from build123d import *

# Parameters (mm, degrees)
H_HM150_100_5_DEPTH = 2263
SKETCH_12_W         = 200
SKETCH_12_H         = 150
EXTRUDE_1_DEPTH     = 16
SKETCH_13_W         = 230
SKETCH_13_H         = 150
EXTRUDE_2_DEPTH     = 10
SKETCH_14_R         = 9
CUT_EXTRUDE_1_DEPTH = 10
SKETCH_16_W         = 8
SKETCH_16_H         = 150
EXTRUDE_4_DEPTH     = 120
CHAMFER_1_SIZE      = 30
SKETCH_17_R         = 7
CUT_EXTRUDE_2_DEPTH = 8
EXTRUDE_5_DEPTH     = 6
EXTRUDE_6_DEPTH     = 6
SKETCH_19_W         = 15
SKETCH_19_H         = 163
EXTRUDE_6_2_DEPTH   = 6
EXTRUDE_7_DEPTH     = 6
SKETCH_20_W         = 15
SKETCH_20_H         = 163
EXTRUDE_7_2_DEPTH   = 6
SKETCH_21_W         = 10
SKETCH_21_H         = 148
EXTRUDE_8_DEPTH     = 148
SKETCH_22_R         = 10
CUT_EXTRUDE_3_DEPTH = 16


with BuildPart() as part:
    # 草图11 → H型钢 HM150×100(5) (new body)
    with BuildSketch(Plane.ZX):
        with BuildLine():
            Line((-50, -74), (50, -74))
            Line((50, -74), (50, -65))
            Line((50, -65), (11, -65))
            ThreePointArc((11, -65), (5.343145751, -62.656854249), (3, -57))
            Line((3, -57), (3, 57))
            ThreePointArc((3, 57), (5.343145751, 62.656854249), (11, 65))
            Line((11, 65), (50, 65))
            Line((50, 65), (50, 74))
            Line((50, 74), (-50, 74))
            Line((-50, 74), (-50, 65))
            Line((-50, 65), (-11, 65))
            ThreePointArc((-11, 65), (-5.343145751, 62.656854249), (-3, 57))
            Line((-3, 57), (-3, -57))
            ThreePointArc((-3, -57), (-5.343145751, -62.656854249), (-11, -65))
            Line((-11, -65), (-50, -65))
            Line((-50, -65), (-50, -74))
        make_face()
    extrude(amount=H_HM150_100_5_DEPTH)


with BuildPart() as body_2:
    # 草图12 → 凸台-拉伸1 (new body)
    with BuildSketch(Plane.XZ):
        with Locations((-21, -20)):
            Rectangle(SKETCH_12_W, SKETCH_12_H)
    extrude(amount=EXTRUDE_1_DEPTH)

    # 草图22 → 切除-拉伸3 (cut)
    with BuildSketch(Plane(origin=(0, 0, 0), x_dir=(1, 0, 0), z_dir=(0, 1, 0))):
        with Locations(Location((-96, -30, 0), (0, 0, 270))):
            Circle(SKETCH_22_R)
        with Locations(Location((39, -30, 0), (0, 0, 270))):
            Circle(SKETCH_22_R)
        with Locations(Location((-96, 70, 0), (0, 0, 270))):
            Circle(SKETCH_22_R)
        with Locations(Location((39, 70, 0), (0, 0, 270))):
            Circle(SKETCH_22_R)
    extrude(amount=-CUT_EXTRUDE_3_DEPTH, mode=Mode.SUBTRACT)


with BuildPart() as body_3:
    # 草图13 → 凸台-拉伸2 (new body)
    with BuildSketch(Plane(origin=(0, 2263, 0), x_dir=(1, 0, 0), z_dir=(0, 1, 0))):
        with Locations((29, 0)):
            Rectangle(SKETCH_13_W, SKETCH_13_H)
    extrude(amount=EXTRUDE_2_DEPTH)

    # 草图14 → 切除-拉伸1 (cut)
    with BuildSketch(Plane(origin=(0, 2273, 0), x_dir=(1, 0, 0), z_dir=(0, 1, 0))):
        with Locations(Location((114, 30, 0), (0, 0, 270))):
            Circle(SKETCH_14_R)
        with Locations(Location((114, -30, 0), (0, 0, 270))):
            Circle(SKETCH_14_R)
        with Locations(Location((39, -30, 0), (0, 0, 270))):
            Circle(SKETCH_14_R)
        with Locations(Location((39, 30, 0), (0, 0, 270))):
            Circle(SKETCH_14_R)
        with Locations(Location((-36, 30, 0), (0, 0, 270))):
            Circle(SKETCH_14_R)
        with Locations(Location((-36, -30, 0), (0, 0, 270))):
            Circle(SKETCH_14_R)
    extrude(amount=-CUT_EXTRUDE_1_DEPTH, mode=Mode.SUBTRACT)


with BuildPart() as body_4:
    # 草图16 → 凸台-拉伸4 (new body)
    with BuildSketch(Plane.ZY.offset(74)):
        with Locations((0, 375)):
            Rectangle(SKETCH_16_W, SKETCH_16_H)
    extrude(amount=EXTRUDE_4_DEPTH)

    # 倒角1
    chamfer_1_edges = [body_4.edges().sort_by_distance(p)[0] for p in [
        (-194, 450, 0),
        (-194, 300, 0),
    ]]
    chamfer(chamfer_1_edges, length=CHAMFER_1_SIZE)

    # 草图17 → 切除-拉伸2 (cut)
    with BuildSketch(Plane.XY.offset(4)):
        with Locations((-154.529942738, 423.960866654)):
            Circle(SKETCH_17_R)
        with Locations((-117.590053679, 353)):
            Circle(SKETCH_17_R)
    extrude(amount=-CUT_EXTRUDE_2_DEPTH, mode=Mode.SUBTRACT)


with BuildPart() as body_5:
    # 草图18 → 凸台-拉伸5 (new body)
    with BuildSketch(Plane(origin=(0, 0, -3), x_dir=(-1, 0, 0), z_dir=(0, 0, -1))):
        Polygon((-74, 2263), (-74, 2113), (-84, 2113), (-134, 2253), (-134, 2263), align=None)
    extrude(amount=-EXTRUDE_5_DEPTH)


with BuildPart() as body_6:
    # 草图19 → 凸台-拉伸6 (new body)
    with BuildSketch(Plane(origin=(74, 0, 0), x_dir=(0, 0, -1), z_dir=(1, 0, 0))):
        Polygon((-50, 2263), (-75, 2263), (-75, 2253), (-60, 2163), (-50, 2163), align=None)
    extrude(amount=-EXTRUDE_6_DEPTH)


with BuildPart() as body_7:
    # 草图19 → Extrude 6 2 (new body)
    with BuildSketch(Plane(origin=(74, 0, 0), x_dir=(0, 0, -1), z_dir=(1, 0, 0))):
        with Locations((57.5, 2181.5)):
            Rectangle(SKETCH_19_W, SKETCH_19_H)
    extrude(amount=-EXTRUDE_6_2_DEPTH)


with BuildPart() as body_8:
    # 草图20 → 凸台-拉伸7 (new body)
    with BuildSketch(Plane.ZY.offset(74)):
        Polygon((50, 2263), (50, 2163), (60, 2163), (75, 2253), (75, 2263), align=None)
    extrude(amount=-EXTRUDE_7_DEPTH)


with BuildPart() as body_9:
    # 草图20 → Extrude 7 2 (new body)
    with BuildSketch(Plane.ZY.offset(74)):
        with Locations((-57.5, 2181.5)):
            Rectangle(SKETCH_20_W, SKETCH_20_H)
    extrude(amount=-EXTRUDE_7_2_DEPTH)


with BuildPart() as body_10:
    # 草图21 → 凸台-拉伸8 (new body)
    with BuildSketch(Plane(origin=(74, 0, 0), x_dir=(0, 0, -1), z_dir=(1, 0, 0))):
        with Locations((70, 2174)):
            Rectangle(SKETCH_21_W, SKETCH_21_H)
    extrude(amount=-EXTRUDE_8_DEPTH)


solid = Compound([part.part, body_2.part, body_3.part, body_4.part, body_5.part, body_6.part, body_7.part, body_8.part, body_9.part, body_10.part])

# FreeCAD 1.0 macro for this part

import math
import FreeCAD as App
import Part
import Sketcher

V = App.Vector


def edges_at(feature, points):
    """Names of the edges that pass closest to the given points."""
    edges = feature.Shape.Edges
    near = lambda p: min(range(len(edges)), key=lambda i: edges[i].distToShape(Part.Vertex(*p))[0])
    return sorted({f"Edge{near(p) + 1}" for p in points})


def add_polygon(sketch, points):
    """Adds a closed chain of lines whose ends are joined by coincident constraints."""
    first, n = sketch.GeometryCount, len(points)
    for a, b in zip(points, points[1:] + points[:1]):
        sketch.addGeometry(Part.LineSegment(App.Vector(*a, 0), App.Vector(*b, 0)), False)
    for i in range(n):
        sketch.addConstraint(Sketcher.Constraint("Coincident", first + i, 2, first + (i + 1) % n, 1))

doc = App.newDocument("Part")
params = doc.addObject("Spreadsheet::Sheet", "Params")
for row, (alias, value) in enumerate([
    ("sketch1_radius", "8 mm"),
    ("sketch1_width", "9 mm"),
    ("sketch1_width2", "114 mm"),
    ("sketch1_height", "100 mm"),
    ("sketch1_height2", "39 mm"),
    ("pad1_length", "2263 mm"),
    ("sketch2_width", "200 mm"),
    ("sketch2_height", "150 mm"),
    ("pad2_length", "16 mm"),
    ("sketch3_diameter", "20 mm"),
    ("pocket1_length", "16 mm"),
    ("sketch4_width", "230 mm"),
    ("sketch4_height", "150 mm"),
    ("pad3_length", "10 mm"),
    ("sketch5_diameter", "18 mm"),
    ("pocket2_length", "10 mm"),
    ("sketch6_width", "150 mm"),
    ("sketch6_height", "8 mm"),
    ("pad4_length", "120 mm"),
    ("chamfer_size", "30 mm"),
    ("sketch7_diameter", "14 mm"),
    ("pocket3_length", "8 mm"),
    ("sketch8_width", "60 mm"),
    ("sketch8_width2", "10 mm"),
    ("sketch8_height", "150 mm"),
    ("pad5_length", "6 mm"),
    ("sketch9_width", "10 mm"),
    ("sketch9_width2", "100 mm"),
    ("sketch9_height", "25 mm"),
    ("pad6_length", "6 mm"),
    ("sketch10_width", "163 mm"),
    ("sketch10_height", "15 mm"),
    ("pad7_length", "6 mm"),
    ("sketch11_width", "100 mm"),
    ("sketch11_width2", "10 mm"),
    ("sketch11_height", "25 mm"),
    ("pad8_length", "6 mm"),
    ("sketch12_width", "163 mm"),
    ("sketch12_height", "15 mm"),
    ("pad9_length", "6 mm"),
    ("sketch13_width", "148 mm"),
    ("sketch13_height", "10 mm"),
    ("pad10_length", "148 mm"),
], start=1):
    params.set(f"A{row}", alias)
    params.set(f"B{row}", "=" + value)
    params.setAlias(f"B{row}", alias)

body = doc.addObject("PartDesign::Body", "Body")

# Sketch on XZ plane
sketch1 = body.newObject("Sketcher::SketchObject", "Sketch")
sketch1.AttachmentSupport = (doc.getObject("XZ_Plane"), [""])
sketch1.MapMode = "FlatFace"
sketch1.addGeometry([
    Part.LineSegment(V(-74, -50, 0), V(-74, 50, 0)),  # 0
    Part.LineSegment(V(-74, 50, 0), V(-65, 50, 0)),  # 1
    Part.LineSegment(V(-65, 50, 0), V(-65, 11, 0)),  # 2
    Part.ArcOfCircle(Part.Circle(V(-57, 11, 0), V(0, 0, 1), 8), math.radians(-180), math.radians(-90)),  # 3
    Part.LineSegment(V(-57, 3, 0), V(57, 3, 0)),  # 4
    Part.ArcOfCircle(Part.Circle(V(57, 11, 0), V(0, 0, 1), 8), math.radians(-90), math.radians(0)),  # 5
    Part.LineSegment(V(65, 11, 0), V(65, 50, 0)),  # 6
    Part.LineSegment(V(65, 50, 0), V(74, 50, 0)),  # 7
    Part.LineSegment(V(74, 50, 0), V(74, -50, 0)),  # 8
    Part.LineSegment(V(74, -50, 0), V(65, -50, 0)),  # 9
    Part.LineSegment(V(65, -50, 0), V(65, -11, 0)),  # 10
    Part.ArcOfCircle(Part.Circle(V(57, -11, 0), V(0, 0, 1), 8), math.radians(0), math.radians(90)),  # 11
    Part.LineSegment(V(57, -3, 0), V(-57, -3, 0)),  # 12
    Part.ArcOfCircle(Part.Circle(V(-57, -11, 0), V(0, 0, 1), 8), math.radians(90), math.radians(180)),  # 13
    Part.LineSegment(V(-65, -11, 0), V(-65, -50, 0)),  # 14
    Part.LineSegment(V(-65, -50, 0), V(-74, -50, 0)),  # 15
], False)
sketch1.addConstraint([
    Sketcher.Constraint("Coincident", 0, 2, 1, 1),
    Sketcher.Constraint("Coincident", 1, 2, 2, 1),
    Sketcher.Constraint("Tangent", 2, 2, 3, 1),
    Sketcher.Constraint("Tangent", 3, 2, 4, 1),
    Sketcher.Constraint("Tangent", 4, 2, 5, 1),
    Sketcher.Constraint("Tangent", 5, 2, 6, 1),
    Sketcher.Constraint("Coincident", 6, 2, 7, 1),
    Sketcher.Constraint("Coincident", 7, 2, 8, 1),
    Sketcher.Constraint("Coincident", 8, 2, 9, 1),
    Sketcher.Constraint("Coincident", 9, 2, 10, 1),
    Sketcher.Constraint("Tangent", 10, 2, 11, 1),
    Sketcher.Constraint("Tangent", 11, 2, 12, 1),
    Sketcher.Constraint("Tangent", 12, 2, 13, 1),
    Sketcher.Constraint("Tangent", 13, 2, 14, 1),
    Sketcher.Constraint("Coincident", 14, 2, 15, 1),
    Sketcher.Constraint("Coincident", 15, 2, 0, 1),
    Sketcher.Constraint("Vertical", 0),
    Sketcher.Constraint("Horizontal", 1),
    Sketcher.Constraint("Vertical", 2),
    Sketcher.Constraint("Horizontal", 4),
    Sketcher.Constraint("Vertical", 6),
    Sketcher.Constraint("Horizontal", 7),
    Sketcher.Constraint("Vertical", 8),
    Sketcher.Constraint("Horizontal", 9),
    Sketcher.Constraint("Vertical", 10),
    Sketcher.Constraint("Horizontal", 12),
    Sketcher.Constraint("Vertical", 14),
    Sketcher.Constraint("Horizontal", 15),
    Sketcher.Constraint("Equal", 3, 5),
    Sketcher.Constraint("Equal", 5, 11),
    Sketcher.Constraint("Equal", 11, 13),
    Sketcher.Constraint("Symmetric", 3, 3, 11, 3, -1, 1),
    Sketcher.Constraint("Symmetric", 0, 2, 8, 2, -1, 1),
    Sketcher.Constraint("Symmetric", 6, 2, 14, 2, -1, 1),
    Sketcher.Constraint("Symmetric", 1, 2, 6, 2, -2),
    Sketcher.Constraint("Radius", 3, 8.0),
    Sketcher.Constraint("DistanceX", 1, 1, 1, 2, 9.0),
    Sketcher.Constraint("DistanceX", 4, 1, 4, 2, 114.0),
    Sketcher.Constraint("DistanceY", 0, 1, 0, 2, 100.0),
    Sketcher.Constraint("DistanceY", 2, 2, 2, 1, 39.0),
])
sketch1.setExpression("Constraints[35]", "Params.sketch1_radius")
sketch1.setExpression("Constraints[36]", "Params.sketch1_width")
sketch1.setExpression("Constraints[37]", "Params.sketch1_width2")
sketch1.setExpression("Constraints[38]", "Params.sketch1_height")
sketch1.setExpression("Constraints[39]", "Params.sketch1_height2")
pad1 = body.newObject("PartDesign::Pad", "Pad")
pad1.Profile = sketch1
pad1.setExpression("Length", "Params.pad1_length")
pad1.Reversed = True
body2 = doc.addObject("PartDesign::Body", "Body001")

# Sketch on XZ plane
sketch2 = body2.newObject("Sketcher::SketchObject", "Sketch001")
sketch2.AttachmentSupport = (doc.getObject("XZ_Plane001"), [""])
sketch2.MapMode = "FlatFace"
add_polygon(sketch2, [(-121, 55), (-121, -95), (79, -95), (79, 55)])  # lines 0-3
sketch2.addConstraint([
    Sketcher.Constraint("Vertical", 0),
    Sketcher.Constraint("Horizontal", 1),
    Sketcher.Constraint("Vertical", 2),
    Sketcher.Constraint("Horizontal", 3),
    Sketcher.Constraint("DistanceX", 1, 1, 1, 2, 200.0),
    Sketcher.Constraint("DistanceY", 0, 2, 0, 1, 150.0),
    Sketcher.Constraint("DistanceX", 0, 2, -1, 1, 121.0),
    Sketcher.Constraint("DistanceY", 0, 2, -1, 1, 95.0),
])
sketch2.setExpression("Constraints[8]", "Params.sketch2_width")
sketch2.setExpression("Constraints[9]", "Params.sketch2_height")
pad2 = body2.newObject("PartDesign::Pad", "Pad001")
pad2.Profile = sketch2
pad2.setExpression("Length", "Params.pad2_length")

# Sketch on XZ plane
sketch3 = body2.newObject("Sketcher::SketchObject", "Sketch002")
sketch3.AttachmentSupport = (doc.getObject("XZ_Plane001"), [""])
sketch3.MapMode = "FlatFace"
sketch3.addGeometry([
    Part.Circle(V(-96, 30, 0), V(0, 0, 1), 10),
    Part.Circle(V(39, 30, 0), V(0, 0, 1), 10),
    Part.Circle(V(-96, -70, 0), V(0, 0, 1), 10),
    Part.Circle(V(39, -70, 0), V(0, 0, 1), 10),
], False)
sketch3.addConstraint([
    Sketcher.Constraint("Equal", 0, 1),
    Sketcher.Constraint("Equal", 1, 2),
    Sketcher.Constraint("Equal", 2, 3),
    Sketcher.Constraint("Horizontal", 0, 3, 1, 3),
    Sketcher.Constraint("Horizontal", 2, 3, 3, 3),
    Sketcher.Constraint("Vertical", 0, 3, 2, 3),
    Sketcher.Constraint("Vertical", 1, 3, 3, 3),
    Sketcher.Constraint("Diameter", 0, 20.0),
    Sketcher.Constraint("DistanceX", 0, 3, -1, 1, 96.0),
    Sketcher.Constraint("DistanceY", -1, 1, 0, 3, 30.0),
    Sketcher.Constraint("DistanceX", -1, 1, 1, 3, 39.0),
    Sketcher.Constraint("DistanceY", 2, 3, -1, 1, 70.0),
])
sketch3.setExpression("Constraints[7]", "Params.sketch3_diameter")
pocket1 = body2.newObject("PartDesign::Pocket", "Pocket")
pocket1.Profile = sketch3
pocket1.setExpression("Length", "Params.pocket1_length")
pocket1.Reversed = True
body3 = doc.addObject("PartDesign::Body", "Body002")

# Sketch on XZ plane
sketch4 = body3.newObject("Sketcher::SketchObject", "Sketch003")
sketch4.AttachmentSupport = (doc.getObject("XZ_Plane002"), [""])
sketch4.MapMode = "FlatFace"
sketch4.AttachmentOffset = App.Placement(V(0, 0, -2263), App.Rotation())
add_polygon(sketch4, [(-86, -75), (-86, 75), (144, 75), (144, -75)])  # lines 0-3
sketch4.addConstraint([
    Sketcher.Constraint("Vertical", 0),
    Sketcher.Constraint("Horizontal", 1),
    Sketcher.Constraint("Vertical", 2),
    Sketcher.Constraint("Horizontal", 3),
    Sketcher.Constraint("DistanceX", 1, 1, 1, 2, 230.0),
    Sketcher.Constraint("DistanceY", 0, 1, 0, 2, 150.0),
    Sketcher.Constraint("DistanceX", 0, 2, -1, 1, 86.0),
    Sketcher.Constraint("DistanceY", -1, 1, 0, 2, 75.0),
])
sketch4.setExpression("Constraints[8]", "Params.sketch4_width")
sketch4.setExpression("Constraints[9]", "Params.sketch4_height")
pad3 = body3.newObject("PartDesign::Pad", "Pad002")
pad3.Profile = sketch4
pad3.setExpression("Length", "Params.pad3_length")
pad3.Reversed = True

# Sketch on XZ plane
sketch5 = body3.newObject("Sketcher::SketchObject", "Sketch004")
sketch5.AttachmentSupport = (doc.getObject("XZ_Plane002"), [""])
sketch5.MapMode = "FlatFace"
sketch5.AttachmentOffset = App.Placement(V(0, 0, -2273), App.Rotation())
sketch5.addGeometry([
    Part.Circle(V(114, -30, 0), V(0, 0, 1), 9),  # 0
    Part.Circle(V(114, 30, 0), V(0, 0, 1), 9),  # 1
    Part.Circle(V(39, 30, 0), V(0, 0, 1), 9),  # 2
    Part.Circle(V(39, -30, 0), V(0, 0, 1), 9),  # 3
    Part.Circle(V(-36, -30, 0), V(0, 0, 1), 9),  # 4
    Part.Circle(V(-36, 30, 0), V(0, 0, 1), 9),  # 5
], False)
sketch5.addConstraint([
    Sketcher.Constraint("Equal", 0, 1),
    Sketcher.Constraint("Equal", 1, 2),
    Sketcher.Constraint("Equal", 2, 3),
    Sketcher.Constraint("Equal", 3, 4),
    Sketcher.Constraint("Equal", 4, 5),
    Sketcher.Constraint("Symmetric", 0, 3, 1, 3, -1),
    Sketcher.Constraint("Symmetric", 2, 3, 3, 3, -1),
    Sketcher.Constraint("Symmetric", 4, 3, 5, 3, -1),
    Sketcher.Constraint("Horizontal", 1, 3, 2, 3),
    Sketcher.Constraint("Horizontal", 3, 3, 4, 3),
    Sketcher.Constraint("Diameter", 0, 18.0),
    Sketcher.Constraint("DistanceX", -1, 1, 0, 3, 114.0),
    Sketcher.Constraint("DistanceY", 0, 3, -1, 1, 30.0),
    Sketcher.Constraint("DistanceX", -1, 1, 2, 3, 39.0),
    Sketcher.Constraint("DistanceX", 4, 3, -1, 1, 36.0),
])
sketch5.setExpression("Constraints[10]", "Params.sketch5_diameter")
pocket2 = body3.newObject("PartDesign::Pocket", "Pocket001")
pocket2.Profile = sketch5
pocket2.setExpression("Length", "Params.pocket2_length")
pocket2.Reversed = True
body4 = doc.addObject("PartDesign::Body", "Body003")

# Sketch on YZ plane
sketch6 = body4.newObject("Sketcher::SketchObject", "Sketch005")
sketch6.AttachmentSupport = (doc.getObject("YZ_Plane003"), [""])
sketch6.MapMode = "FlatFace"
sketch6.AttachmentOffset = App.Placement(V(0, 0, -74), App.Rotation())
add_polygon(sketch6, [(450, -4), (300, -4), (300, 4), (450, 4)])  # lines 0-3
sketch6.addConstraint([
    Sketcher.Constraint("Horizontal", 0),
    Sketcher.Constraint("Vertical", 1),
    Sketcher.Constraint("Horizontal", 2),
    Sketcher.Constraint("Vertical", 3),
    Sketcher.Constraint("DistanceX", 0, 2, 0, 1, 150.0),
    Sketcher.Constraint("DistanceY", 1, 1, 1, 2, 8.0),
    Sketcher.Constraint("DistanceX", -1, 1, 0, 2, 300.0),
    Sketcher.Constraint("DistanceY", 0, 2, -1, 1, 4.0),
])
sketch6.setExpression("Constraints[8]", "Params.sketch6_width")
sketch6.setExpression("Constraints[9]", "Params.sketch6_height")
pad4 = body4.newObject("PartDesign::Pad", "Pad003")
pad4.Profile = sketch6
pad4.setExpression("Length", "Params.pad4_length")
pad4.Reversed = True
doc.recompute()

chamfer = body4.newObject("PartDesign::Chamfer", "Chamfer")
chamfer.Base = (pad4, edges_at(pad4, [(-194, 450, 0), (-194, 300, 0)]))
chamfer.setExpression("Size", "Params.chamfer_size")

# Sketch on XY plane
sketch7 = body4.newObject("Sketcher::SketchObject", "Sketch006")
sketch7.AttachmentSupport = (doc.getObject("XY_Plane003"), [""])
sketch7.MapMode = "FlatFace"
sketch7.AttachmentOffset = App.Placement(V(0, 0, 4), App.Rotation())
sketch7.addGeometry([
    Part.Circle(V(-154.529943, 423.960867, 0), V(0, 0, 1), 7),
    Part.Circle(V(-117.590054, 353, 0), V(0, 0, 1), 7),
], False)
sketch7.addConstraint([
    Sketcher.Constraint("Equal", 0, 1),
    Sketcher.Constraint("Diameter", 0, 14.0),
    Sketcher.Constraint("DistanceY", -1, 1, 1, 3, 353.0),
    Sketcher.Constraint("DistanceX", 0, 3, 1, 3, 36.939889),
    Sketcher.Constraint("DistanceX", 0, 3, -1, 1, 154.529943),
    Sketcher.Constraint("DistanceY", -1, 1, 0, 3, 423.960867),
])
sketch7.setExpression("Constraints[1]", "Params.sketch7_diameter")
pocket3 = body4.newObject("PartDesign::Pocket", "Pocket002")
pocket3.Profile = sketch7
pocket3.setExpression("Length", "Params.pocket3_length")
body5 = doc.addObject("PartDesign::Body", "Body004")

# Sketch on XY plane
sketch8 = body5.newObject("Sketcher::SketchObject", "Sketch007")
sketch8.AttachmentSupport = (doc.getObject("XY_Plane004"), [""])
sketch8.MapMode = "FlatFace"
sketch8.AttachmentOffset = App.Placement(V(0, 0, -3), App.Rotation())
add_polygon(sketch8, [(74, 2113), (74, 2263), (134, 2263), (134, 2253), (84, 2113)])  # lines 0-4
sketch8.addConstraint([
    Sketcher.Constraint("Vertical", 0),
    Sketcher.Constraint("Horizontal", 1),
    Sketcher.Constraint("Vertical", 2),
    Sketcher.Constraint("Horizontal", 4),
    Sketcher.Constraint("Equal", 4, 2),
    Sketcher.Constraint("DistanceX", 1, 1, 1, 2, 60.0),
    Sketcher.Constraint("DistanceX", 4, 2, 4, 1, 10.0),
    Sketcher.Constraint("DistanceY", 0, 1, 0, 2, 150.0),
    Sketcher.Constraint("DistanceX", -1, 1, 0, 2, 74.0),
    Sketcher.Constraint("DistanceY", -1, 1, 0, 2, 2263.0),
])
sketch8.setExpression("Constraints[10]", "Params.sketch8_width")
sketch8.setExpression("Constraints[11]", "Params.sketch8_width2")
sketch8.setExpression("Constraints[12]", "Params.sketch8_height")
pad5 = body5.newObject("PartDesign::Pad", "Pad004")
pad5.Profile = sketch8
pad5.setExpression("Length", "Params.pad5_length")
body6 = doc.addObject("PartDesign::Body", "Body005")

# Sketch on YZ plane
sketch9 = body6.newObject("Sketcher::SketchObject", "Sketch008")
sketch9.AttachmentSupport = (doc.getObject("YZ_Plane005"), [""])
sketch9.MapMode = "FlatFace"
sketch9.AttachmentOffset = App.Placement(V(0, 0, 74), App.Rotation())
add_polygon(sketch9, [(2263, 50), (2263, 75), (2253, 75), (2163, 60), (2163, 50)])  # lines 0-4
sketch9.addConstraint([
    Sketcher.Constraint("Vertical", 0),
    Sketcher.Constraint("Horizontal", 1),
    Sketcher.Constraint("Vertical", 3),
    Sketcher.Constraint("Horizontal", 4),
    Sketcher.Constraint("Equal", 1, 3),
    Sketcher.Constraint("DistanceX", 1, 2, 1, 1, 10.0),
    Sketcher.Constraint("DistanceX", 4, 1, 4, 2, 100.0),
    Sketcher.Constraint("DistanceY", 0, 1, 0, 2, 25.0),
    Sketcher.Constraint("DistanceX", -1, 1, 0, 2, 2263.0),
    Sketcher.Constraint("DistanceY", -1, 1, 0, 2, 75.0),
])
sketch9.setExpression("Constraints[10]", "Params.sketch9_width")
sketch9.setExpression("Constraints[11]", "Params.sketch9_width2")
sketch9.setExpression("Constraints[12]", "Params.sketch9_height")
pad6 = body6.newObject("PartDesign::Pad", "Pad005")
pad6.Profile = sketch9
pad6.setExpression("Length", "Params.pad6_length")
pad6.Reversed = True
body7 = doc.addObject("PartDesign::Body", "Body006")

# Sketch on YZ plane
sketch10 = body7.newObject("Sketcher::SketchObject", "Sketch009")
sketch10.AttachmentSupport = (doc.getObject("YZ_Plane006"), [""])
sketch10.MapMode = "FlatFace"
sketch10.AttachmentOffset = App.Placement(V(0, 0, 74), App.Rotation())
add_polygon(sketch10, [(2263, -50), (2100, -50), (2100, -65), (2263, -65)])  # lines 0-3
sketch10.addConstraint([
    Sketcher.Constraint("Horizontal", 0),
    Sketcher.Constraint("Vertical", 1),
    Sketcher.Constraint("Horizontal", 2),
    Sketcher.Constraint("Vertical", 3),
    Sketcher.Constraint("DistanceX", 0, 2, 0, 1, 163.0),
    Sketcher.Constraint("DistanceY", 1, 2, 1, 1, 15.0),
    Sketcher.Constraint("DistanceX", -1, 1, 0, 2, 2100.0),
    Sketcher.Constraint("DistanceY", 0, 2, -1, 1, 50.0),
])
sketch10.setExpression("Constraints[8]", "Params.sketch10_width")
sketch10.setExpression("Constraints[9]", "Params.sketch10_height")
pad7 = body7.newObject("PartDesign::Pad", "Pad006")
pad7.Profile = sketch10
pad7.setExpression("Length", "Params.pad7_length")
pad7.Reversed = True
body8 = doc.addObject("PartDesign::Body", "Body007")

# Sketch on YZ plane
sketch11 = body8.newObject("Sketcher::SketchObject", "Sketch010")
sketch11.AttachmentSupport = (doc.getObject("YZ_Plane007"), [""])
sketch11.MapMode = "FlatFace"
sketch11.AttachmentOffset = App.Placement(V(0, 0, -74), App.Rotation())
add_polygon(sketch11, [(2263, 50), (2163, 50), (2163, 60), (2253, 75), (2263, 75)])  # lines 0-4
sketch11.addConstraint([
    Sketcher.Constraint("Horizontal", 0),
    Sketcher.Constraint("Vertical", 1),
    Sketcher.Constraint("Horizontal", 3),
    Sketcher.Constraint("Vertical", 4),
    Sketcher.Constraint("Equal", 3, 1),
    Sketcher.Constraint("DistanceX", 0, 2, 0, 1, 100.0),
    Sketcher.Constraint("DistanceX", 3, 1, 3, 2, 10.0),
    Sketcher.Constraint("DistanceY", 4, 2, 4, 1, 25.0),
    Sketcher.Constraint("DistanceX", -1, 1, 0, 2, 2163.0),
    Sketcher.Constraint("DistanceY", -1, 1, 0, 2, 50.0),
])
sketch11.setExpression("Constraints[10]", "Params.sketch11_width")
sketch11.setExpression("Constraints[11]", "Params.sketch11_width2")
sketch11.setExpression("Constraints[12]", "Params.sketch11_height")
pad8 = body8.newObject("PartDesign::Pad", "Pad007")
pad8.Profile = sketch11
pad8.setExpression("Length", "Params.pad8_length")
body9 = doc.addObject("PartDesign::Body", "Body008")

# Sketch on YZ plane
sketch12 = body9.newObject("Sketcher::SketchObject", "Sketch011")
sketch12.AttachmentSupport = (doc.getObject("YZ_Plane008"), [""])
sketch12.MapMode = "FlatFace"
sketch12.AttachmentOffset = App.Placement(V(0, 0, -74), App.Rotation())
add_polygon(sketch12, [(2263, -65), (2100, -65), (2100, -50), (2263, -50)])  # lines 0-3
sketch12.addConstraint([
    Sketcher.Constraint("Horizontal", 0),
    Sketcher.Constraint("Vertical", 1),
    Sketcher.Constraint("Horizontal", 2),
    Sketcher.Constraint("Vertical", 3),
    Sketcher.Constraint("DistanceX", 0, 2, 0, 1, 163.0),
    Sketcher.Constraint("DistanceY", 1, 1, 1, 2, 15.0),
    Sketcher.Constraint("DistanceX", -1, 1, 0, 2, 2100.0),
    Sketcher.Constraint("DistanceY", 0, 2, -1, 1, 65.0),
])
sketch12.setExpression("Constraints[8]", "Params.sketch12_width")
sketch12.setExpression("Constraints[9]", "Params.sketch12_height")
pad9 = body9.newObject("PartDesign::Pad", "Pad008")
pad9.Profile = sketch12
pad9.setExpression("Length", "Params.pad9_length")
body10 = doc.addObject("PartDesign::Body", "Body009")

# Sketch on YZ plane
sketch13 = body10.newObject("Sketcher::SketchObject", "Sketch012")
sketch13.AttachmentSupport = (doc.getObject("YZ_Plane009"), [""])
sketch13.MapMode = "FlatFace"
sketch13.AttachmentOffset = App.Placement(V(0, 0, 74), App.Rotation())
add_polygon(sketch13, [(2248, -65), (2100, -65), (2100, -75), (2248, -75)])  # lines 0-3
sketch13.addConstraint([
    Sketcher.Constraint("Horizontal", 0),
    Sketcher.Constraint("Vertical", 1),
    Sketcher.Constraint("Horizontal", 2),
    Sketcher.Constraint("Vertical", 3),
    Sketcher.Constraint("DistanceX", 0, 2, 0, 1, 148.0),
    Sketcher.Constraint("DistanceY", 1, 2, 1, 1, 10.0),
    Sketcher.Constraint("DistanceX", -1, 1, 0, 2, 2100.0),
    Sketcher.Constraint("DistanceY", 0, 2, -1, 1, 65.0),
])
sketch13.setExpression("Constraints[8]", "Params.sketch13_width")
sketch13.setExpression("Constraints[9]", "Params.sketch13_height")
pad10 = body10.newObject("PartDesign::Pad", "Pad009")
pad10.Profile = sketch13
pad10.setExpression("Length", "Params.pad10_length")
pad10.Reversed = True

doc.recompute()
